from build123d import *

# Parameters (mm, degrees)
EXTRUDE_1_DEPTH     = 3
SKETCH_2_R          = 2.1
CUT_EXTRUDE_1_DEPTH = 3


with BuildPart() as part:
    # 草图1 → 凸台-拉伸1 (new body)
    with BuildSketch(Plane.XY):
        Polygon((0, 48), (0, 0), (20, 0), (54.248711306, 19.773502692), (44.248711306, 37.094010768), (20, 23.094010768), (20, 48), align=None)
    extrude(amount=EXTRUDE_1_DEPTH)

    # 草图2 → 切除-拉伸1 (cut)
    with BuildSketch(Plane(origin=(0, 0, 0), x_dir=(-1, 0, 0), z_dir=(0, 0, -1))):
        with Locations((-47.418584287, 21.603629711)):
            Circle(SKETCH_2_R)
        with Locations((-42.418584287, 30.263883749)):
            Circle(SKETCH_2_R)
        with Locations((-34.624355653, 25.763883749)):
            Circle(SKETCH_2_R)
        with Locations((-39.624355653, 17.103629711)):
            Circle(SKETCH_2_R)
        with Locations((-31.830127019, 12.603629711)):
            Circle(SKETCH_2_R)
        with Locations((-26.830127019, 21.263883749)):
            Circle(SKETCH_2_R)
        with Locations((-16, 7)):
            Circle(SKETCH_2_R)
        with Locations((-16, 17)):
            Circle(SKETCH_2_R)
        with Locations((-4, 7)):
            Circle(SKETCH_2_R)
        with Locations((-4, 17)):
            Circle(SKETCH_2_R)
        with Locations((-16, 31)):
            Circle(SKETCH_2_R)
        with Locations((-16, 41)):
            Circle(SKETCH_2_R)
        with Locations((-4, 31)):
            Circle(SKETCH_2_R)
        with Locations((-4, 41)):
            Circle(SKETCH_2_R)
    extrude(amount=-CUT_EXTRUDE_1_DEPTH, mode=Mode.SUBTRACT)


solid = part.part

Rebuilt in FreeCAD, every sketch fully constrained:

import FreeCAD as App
import Part
import Sketcher

V = App.Vector
Q = App.Units.Quantity

doc = App.newDocument("Part")
body = doc.addObject("PartDesign::Body", "Body")

# Sketch on XY plane
sketch1 = body.newObject("Sketcher::SketchObject", "Sketch")
sketch1.AttachmentSupport = (doc.getObject("XY_Plane"), [""])
sketch1.MapMode = "FlatFace"
sketch1.addGeometry([
    Part.LineSegment(V(0, 48, 0), V(0, 0, 0)),  # 0
    Part.LineSegment(V(0, 0, 0), V(20, 0, 0)),  # 1
    Part.LineSegment(V(20, 0, 0), V(54.248711, 19.773503, 0)),  # 2
    Part.LineSegment(V(54.248711, 19.773503, 0), V(44.248711, 37.094011, 0)),  # 3
    Part.LineSegment(V(44.248711, 37.094011, 0), V(20, 23.094011, 0)),  # 4
    Part.LineSegment(V(20, 23.094011, 0), V(20, 48, 0)),  # 5
    Part.LineSegment(V(20, 48, 0), V(0, 48, 0)),  # 6
], False)
sketch1.addConstraint([
    Sketcher.Constraint("Coincident", 0, 2, 1, 1),
    Sketcher.Constraint("Coincident", 1, 2, 2, 1),
    Sketcher.Constraint("Coincident", 2, 2, 3, 1),
    Sketcher.Constraint("Coincident", 3, 2, 4, 1),
    Sketcher.Constraint("Coincident", 4, 2, 5, 1),
    Sketcher.Constraint("Coincident", 5, 2, 6, 1),
    Sketcher.Constraint("Coincident", 6, 2, 0, 1),
    Sketcher.Constraint("Vertical", 0),
    Sketcher.Constraint("Horizontal", 1),
    Sketcher.Constraint("Vertical", 5),
    Sketcher.Constraint("Horizontal", 6),
    Sketcher.Constraint("Coincident", 0, 2, -1, 1),
    Sketcher.Constraint("Perpendicular", 2, 3),
    Sketcher.Constraint("Perpendicular", 3, 4),
    Sketcher.Constraint("Vertical", 1, 2, 4, 2),
    Sketcher.Constraint("DistanceX", 1, 1, 1, 2, 20.0),
    Sketcher.Constraint("DistanceY", 0, 2, 0, 1, 48.0),
    Sketcher.Constraint("Angle", 2, Q("30 deg")),
    Sketcher.Constraint("Distance", 3, 20.0),
    Sketcher.Constraint("Distance", 4, 28.0),
])
pad1 = body.newObject("PartDesign::Pad", "Pad")
pad1.Profile = sketch1
pad1.Length = 3

# Sketch on XY plane
sketch2 = body.newObject("Sketcher::SketchObject", "Sketch001")
sketch2.AttachmentSupport = (doc.getObject("XY_Plane"), [""])
sketch2.MapMode = "FlatFace"
sketch2.addGeometry([
    Part.Circle(V(47.418584, 21.60363, 0), V(0, 0, 1), 2.1),  # 0
    Part.Circle(V(42.418584, 30.263884, 0), V(0, 0, 1), 2.1),  # 1
    Part.Circle(V(34.624356, 25.763884, 0), V(0, 0, 1), 2.1),  # 2
    Part.Circle(V(39.624356, 17.10363, 0), V(0, 0, 1), 2.1),  # 3
    Part.Circle(V(31.830127, 12.60363, 0), V(0, 0, 1), 2.1),  # 4
    Part.Circle(V(26.830127, 21.263884, 0), V(0, 0, 1), 2.1),  # 5
    Part.Circle(V(16, 7, 0), V(0, 0, 1), 2.1),  # 6
    Part.Circle(V(16, 17, 0), V(0, 0, 1), 2.1),  # 7
    Part.Circle(V(4, 7, 0), V(0, 0, 1), 2.1),  # 8
    Part.Circle(V(4, 17, 0), V(0, 0, 1), 2.1),  # 9
    Part.Circle(V(16, 31, 0), V(0, 0, 1), 2.1),  # 10
    Part.Circle(V(16, 41, 0), V(0, 0, 1), 2.1),  # 11
    Part.Circle(V(4, 31, 0), V(0, 0, 1), 2.1),  # 12
    Part.Circle(V(4, 41, 0), V(0, 0, 1), 2.1),  # 13
], False)
sketch2.addConstraint([
    Sketcher.Constraint("Equal", 0, 1),
    Sketcher.Constraint("Equal", 1, 2),
    Sketcher.Constraint("Equal", 2, 3),
    Sketcher.Constraint("Equal", 3, 4),
    Sketcher.Constraint("Equal", 4, 5),
    Sketcher.Constraint("Equal", 5, 6),
    Sketcher.Constraint("Equal", 6, 7),
    Sketcher.Constraint("Equal", 7, 8),
    Sketcher.Constraint("Equal", 8, 9),
    Sketcher.Constraint("Equal", 9, 10),
    Sketcher.Constraint("Equal", 10, 11),
    Sketcher.Constraint("Equal", 11, 12),
    Sketcher.Constraint("Equal", 12, 13),
    Sketcher.Constraint("Horizontal", 6, 3, 8, 3),
    Sketcher.Constraint("Horizontal", 7, 3, 9, 3),
    Sketcher.Constraint("Horizontal", 10, 3, 12, 3),
    Sketcher.Constraint("Horizontal", 11, 3, 13, 3),
    Sketcher.Constraint("Vertical", 6, 3, 7, 3),
    Sketcher.Constraint("Vertical", 8, 3, 9, 3),
    Sketcher.Constraint("Vertical", 7, 3, 10, 3),
    Sketcher.Constraint("Vertical", 10, 3, 11, 3),
    Sketcher.Constraint("Vertical", 9, 3, 12, 3),
    Sketcher.Constraint("Vertical", 12, 3, 13, 3),
    Sketcher.Constraint("Diameter", 0, 4.2),
    Sketcher.Constraint("DistanceX", -1, 1, 6, 3, 16.0),
    Sketcher.Constraint("DistanceY", -1, 1, 6, 3, 7.0),
    Sketcher.Constraint("DistanceY", -1, 1, 7, 3, 17.0),
    Sketcher.Constraint("DistanceX", -1, 1, 8, 3, 4.0),
    Sketcher.Constraint("DistanceY", -1, 1, 10, 3, 31.0),
    Sketcher.Constraint("DistanceY", -1, 1, 11, 3, 41.0),
    Sketcher.Constraint("DistanceX", 1, 3, 0, 3, 5.0),
    Sketcher.Constraint("DistanceX", 2, 3, 3, 3, 5.0),
    Sketcher.Constraint("DistanceY", 4, 3, 0, 3, 9.0),
    Sketcher.Constraint("DistanceX", 5, 3, 4, 3, 5.0),
    Sketcher.Constraint("DistanceY", 5, 3, 1, 3, 9.0),
    Sketcher.Constraint("DistanceY", 2, 3, 1, 3, 4.5),
    Sketcher.Constraint("DistanceY", 3, 3, 0, 3, 4.5),
    Sketcher.Constraint("DistanceY", -1, 1, 0, 3, 21.60363),
    Sketcher.Constraint("DistanceX", 2, 3, 1, 3, 7.794229),
    Sketcher.Constraint("DistanceX", 4, 3, 3, 3, 7.794229),
    Sketcher.Constraint("DistanceX", -1, 1, 0, 3, 47.418584),
    Sketcher.Constraint("DistanceY", -1, 1, 1, 3, 30.263884),
])
pocket1 = body.newObject("PartDesign::Pocket", "Pocket")
pocket1.Profile = sketch2
pocket1.Length = 3
pocket1.Reversed = True

doc.recompute()
